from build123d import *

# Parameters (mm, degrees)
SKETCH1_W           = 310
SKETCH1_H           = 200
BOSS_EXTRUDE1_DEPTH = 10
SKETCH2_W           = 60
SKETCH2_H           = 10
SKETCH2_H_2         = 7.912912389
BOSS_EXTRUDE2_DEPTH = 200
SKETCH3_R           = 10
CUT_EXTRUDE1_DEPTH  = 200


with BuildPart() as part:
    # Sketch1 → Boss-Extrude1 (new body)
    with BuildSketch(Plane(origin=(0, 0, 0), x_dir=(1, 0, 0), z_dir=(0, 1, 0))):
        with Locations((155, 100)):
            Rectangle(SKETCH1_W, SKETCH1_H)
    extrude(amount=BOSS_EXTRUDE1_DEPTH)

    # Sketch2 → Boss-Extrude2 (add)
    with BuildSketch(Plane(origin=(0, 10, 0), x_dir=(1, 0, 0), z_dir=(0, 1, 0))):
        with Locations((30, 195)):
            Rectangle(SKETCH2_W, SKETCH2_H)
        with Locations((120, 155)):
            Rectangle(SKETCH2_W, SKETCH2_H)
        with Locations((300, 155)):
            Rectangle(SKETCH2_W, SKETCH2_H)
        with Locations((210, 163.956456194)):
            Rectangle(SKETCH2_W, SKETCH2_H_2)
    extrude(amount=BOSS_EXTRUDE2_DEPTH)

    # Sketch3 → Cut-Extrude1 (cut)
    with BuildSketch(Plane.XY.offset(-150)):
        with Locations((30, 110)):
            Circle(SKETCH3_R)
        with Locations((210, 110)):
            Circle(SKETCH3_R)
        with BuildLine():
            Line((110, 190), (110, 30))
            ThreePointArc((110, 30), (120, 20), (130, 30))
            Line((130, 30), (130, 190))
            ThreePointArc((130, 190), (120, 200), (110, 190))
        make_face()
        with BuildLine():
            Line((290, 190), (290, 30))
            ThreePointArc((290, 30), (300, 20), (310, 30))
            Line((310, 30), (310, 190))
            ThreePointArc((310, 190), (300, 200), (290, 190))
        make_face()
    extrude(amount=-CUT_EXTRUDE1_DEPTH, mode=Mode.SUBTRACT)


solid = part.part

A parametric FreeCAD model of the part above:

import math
import FreeCAD as App
import Part
import Sketcher

V = App.Vector

doc = App.newDocument("Part")
body = doc.addObject("PartDesign::Body", "Body")

# Sketch on XZ plane
sketch1 = doc.addObject("Sketcher::SketchObject", "Sketch")
body.addObject(sketch1)
sketch1.AttachmentSupport = (doc.XZ_Plane, [""])
sketch1.MapMode = "FlatFace"
sketch1.addGeometry(Part.LineSegment(V(0, -200, 0), V(0, 0, 0)), False)
sketch1.addGeometry(Part.LineSegment(V(0, 0, 0), V(310, 0, 0)), False)
sketch1.addGeometry(Part.LineSegment(V(310, 0, 0), V(310, -200, 0)), False)
sketch1.addGeometry(Part.LineSegment(V(310, -200, 0), V(0, -200, 0)), False)
sketch1.addConstraint(Sketcher.Constraint("Coincident", 0, 2, 1, 1))
sketch1.addConstraint(Sketcher.Constraint("Coincident", 1, 2, 2, 1))
sketch1.addConstraint(Sketcher.Constraint("Coincident", 2, 2, 3, 1))
sketch1.addConstraint(Sketcher.Constraint("Coincident", 3, 2, 0, 1))
sketch1.addConstraint(Sketcher.Constraint("Vertical", 0))
sketch1.addConstraint(Sketcher.Constraint("Horizontal", 1))
sketch1.addConstraint(Sketcher.Constraint("Vertical", 2))
sketch1.addConstraint(Sketcher.Constraint("Horizontal", 3))
sketch1.addConstraint(Sketcher.Constraint("Coincident", 0, 2, -1, 1))
sketch1.addConstraint(Sketcher.Constraint("DistanceX", 1, 1, 1, 2, 310.0))
sketch1.addConstraint(Sketcher.Constraint("DistanceY", 0, 1, 0, 2, 200.0))
pad1 = doc.addObject("PartDesign::Pad", "Pad")
body.addObject(pad1)
pad1.Profile = sketch1
pad1.Length = 10
pad1.Reversed = True

# Sketch on XZ plane
sketch2 = doc.addObject("Sketcher::SketchObject", "Sketch001")
body.addObject(sketch2)
sketch2.AttachmentSupport = (doc.XZ_Plane, [""])
sketch2.MapMode = "FlatFace"
sketch2.AttachmentOffset = App.Placement(V(0, 0, -10), App.Rotation())
sketch2.addGeometry(Part.LineSegment(V(0, -200, 0), V(0, -190, 0)), False)
sketch2.addGeometry(Part.LineSegment(V(0, -190, 0), V(60, -190, 0)), False)
sketch2.addGeometry(Part.LineSegment(V(60, -190, 0), V(60, -200, 0)), False)
sketch2.addGeometry(Part.LineSegment(V(60, -200, 0), V(0, -200, 0)), False)
sketch2.addGeometry(Part.LineSegment(V(90, -160, 0), V(90, -150, 0)), False)
sketch2.addGeometry(Part.LineSegment(V(90, -150, 0), V(150, -150, 0)), False)
sketch2.addGeometry(Part.LineSegment(V(150, -150, 0), V(150, -160, 0)), False)
sketch2.addGeometry(Part.LineSegment(V(150, -160, 0), V(90, -160, 0)), False)
sketch2.addGeometry(Part.LineSegment(V(270, -160, 0), V(270, -150, 0)), False)
sketch2.addGeometry(Part.LineSegment(V(270, -150, 0), V(330, -150, 0)), False)
sketch2.addGeometry(Part.LineSegment(V(330, -150, 0), V(330, -160, 0)), False)
sketch2.addGeometry(Part.LineSegment(V(330, -160, 0), V(270, -160, 0)), False)
sketch2.addGeometry(Part.LineSegment(V(180, -167.912912, 0), V(180, -160, 0)), False)
sketch2.addGeometry(Part.LineSegment(V(180, -160, 0), V(240, -160, 0)), False)
sketch2.addGeometry(Part.LineSegment(V(240, -160, 0), V(240, -167.912912, 0)), False)
sketch2.addGeometry(Part.LineSegment(V(240, -167.912912, 0), V(180, -167.912912, 0)), False)
sketch2.addConstraint(Sketcher.Constraint("Coincident", 0, 2, 1, 1))
sketch2.addConstraint(Sketcher.Constraint("Coincident", 1, 2, 2, 1))
sketch2.addConstraint(Sketcher.Constraint("Coincident", 2, 2, 3, 1))
sketch2.addConstraint(Sketcher.Constraint("Coincident", 3, 2, 0, 1))
sketch2.addConstraint(Sketcher.Constraint("Coincident", 4, 2, 5, 1))
sketch2.addConstraint(Sketcher.Constraint("Coincident", 5, 2, 6, 1))
sketch2.addConstraint(Sketcher.Constraint("Coincident", 6, 2, 7, 1))
sketch2.addConstraint(Sketcher.Constraint("Coincident", 7, 2, 4, 1))
sketch2.addConstraint(Sketcher.Constraint("Coincident", 8, 2, 9, 1))
sketch2.addConstraint(Sketcher.Constraint("Coincident", 9, 2, 10, 1))
sketch2.addConstraint(Sketcher.Constraint("Coincident", 10, 2, 11, 1))
sketch2.addConstraint(Sketcher.Constraint("Coincident", 11, 2, 8, 1))
sketch2.addConstraint(Sketcher.Constraint("Coincident", 12, 2, 13, 1))
sketch2.addConstraint(Sketcher.Constraint("Coincident", 13, 2, 14, 1))
sketch2.addConstraint(Sketcher.Constraint("Coincident", 14, 2, 15, 1))
sketch2.addConstraint(Sketcher.Constraint("Coincident", 15, 2, 12, 1))
sketch2.addConstraint(Sketcher.Constraint("Vertical", 0))
sketch2.addConstraint(Sketcher.Constraint("Horizontal", 1))
sketch2.addConstraint(Sketcher.Constraint("Vertical", 2))
sketch2.addConstraint(Sketcher.Constraint("Horizontal", 3))
sketch2.addConstraint(Sketcher.Constraint("Vertical", 4))
sketch2.addConstraint(Sketcher.Constraint("Horizontal", 5))
sketch2.addConstraint(Sketcher.Constraint("Vertical", 6))
sketch2.addConstraint(Sketcher.Constraint("Horizontal", 7))
sketch2.addConstraint(Sketcher.Constraint("Vertical", 8))
sketch2.addConstraint(Sketcher.Constraint("Horizontal", 9))
sketch2.addConstraint(Sketcher.Constraint("Vertical", 10))
sketch2.addConstraint(Sketcher.Constraint("Horizontal", 11))
sketch2.addConstraint(Sketcher.Constraint("Vertical", 12))
sketch2.addConstraint(Sketcher.Constraint("Horizontal", 13))
sketch2.addConstraint(Sketcher.Constraint("Vertical", 14))
sketch2.addConstraint(Sketcher.Constraint("Horizontal", 15))
sketch2.addConstraint(Sketcher.Constraint("PointOnObject", 0, 2, -2))
sketch2.addConstraint(Sketcher.Constraint("Horizontal", 5, 2, 8, 2))
sketch2.addConstraint(Sketcher.Constraint("Horizontal", 7, 2, 10, 2))
sketch2.addConstraint(Sketcher.Constraint("Horizontal", 11, 2, 12, 2))
sketch2.addConstraint(Sketcher.Constraint("Equal", 3, 5))
sketch2.addConstraint(Sketcher.Constraint("Equal", 7, 9))
sketch2.addConstraint(Sketcher.Constraint("Equal", 11, 13))
sketch2.addConstraint(Sketcher.Constraint("Equal", 2, 4))
sketch2.addConstraint(Sketcher.Constraint("DistanceX", 1, 1, 1, 2, 60.0))
sketch2.addConstraint(Sketcher.Constraint("DistanceY", 0, 1, 0, 2, 10.0))
sketch2.addConstraint(Sketcher.Constraint("DistanceY", 0, 2, -1, 1, 190.0))
sketch2.addConstraint(Sketcher.Constraint("DistanceX", -1, 1, 4, 2, 90.0))
sketch2.addConstraint(Sketcher.Constraint("DistanceY", 4, 2, -1, 1, 150.0))
sketch2.addConstraint(Sketcher.Constraint("DistanceX", -1, 1, 8, 2, 270.0))
sketch2.addConstraint(Sketcher.Constraint("DistanceX", -1, 1, 12, 2, 180.0))
sketch2.addConstraint(Sketcher.Constraint("DistanceY", 12, 1, 12, 2, 7.912912))
pad2 = doc.addObject("PartDesign::Pad", "Pad001")
body.addObject(pad2)
pad2.Profile = sketch2
pad2.Length = 200
pad2.Reversed = True

# Sketch on XY plane
sketch3 = doc.addObject("Sketcher::SketchObject", "Sketch002")
body.addObject(sketch3)
sketch3.AttachmentSupport = (doc.XY_Plane, [""])
sketch3.MapMode = "FlatFace"
sketch3.AttachmentOffset = App.Placement(V(0, 0, -150), App.Rotation())
sketch3.addGeometry(Part.Circle(V(30, 110, 0), V(0, 0, 1), 10), False)
sketch3.addGeometry(Part.Circle(V(210, 110, 0), V(0, 0, 1), 10), False)
sketch3.addGeometry(Part.LineSegment(V(110, 190, 0), V(110, 30, 0)), False)
sketch3.addGeometry(Part.ArcOfCircle(Part.Circle(V(120, 30, 0), V(0, 0, 1), 10), math.radians(180), math.radians(360)), False)
sketch3.addGeometry(Part.LineSegment(V(130, 30, 0), V(130, 190, 0)), False)
sketch3.addGeometry(Part.ArcOfCircle(Part.Circle(V(120, 190, 0), V(0, 0, 1), 10), math.radians(0), math.radians(180)), False)
sketch3.addGeometry(Part.LineSegment(V(290, 190, 0), V(290, 30, 0)), False)
sketch3.addGeometry(Part.ArcOfCircle(Part.Circle(V(300, 30, 0), V(0, 0, 1), 10), math.radians(180), math.radians(360)), False)
sketch3.addGeometry(Part.LineSegment(V(310, 30, 0), V(310, 190, 0)), False)
sketch3.addGeometry(Part.ArcOfCircle(Part.Circle(V(300, 190, 0), V(0, 0, 1), 10), math.radians(0), math.radians(180)), False)
sketch3.addConstraint(Sketcher.Constraint("Tangent", 2, 2, 3, 1))
sketch3.addConstraint(Sketcher.Constraint("Tangent", 3, 2, 4, 1))
sketch3.addConstraint(Sketcher.Constraint("Tangent", 4, 2, 5, 1))
sketch3.addConstraint(Sketcher.Constraint("Tangent", 5, 2, 2, 1))
sketch3.addConstraint(Sketcher.Constraint("Tangent", 6, 2, 7, 1))
sketch3.addConstraint(Sketcher.Constraint("Tangent", 7, 2, 8, 1))
sketch3.addConstraint(Sketcher.Constraint("Tangent", 8, 2, 9, 1))
sketch3.addConstraint(Sketcher.Constraint("Tangent", 9, 2, 6, 1))
sketch3.addConstraint(Sketcher.Constraint("Vertical", 2))
sketch3.addConstraint(Sketcher.Constraint("Vertical", 4))
sketch3.addConstraint(Sketcher.Constraint("Vertical", 6))
sketch3.addConstraint(Sketcher.Constraint("Vertical", 8))
sketch3.addConstraint(Sketcher.Constraint("Equal", 0, 1))
sketch3.addConstraint(Sketcher.Constraint("Equal", 1, 3))
sketch3.addConstraint(Sketcher.Constraint("Equal", 5, 7))
sketch3.addConstraint(Sketcher.Constraint("Horizontal", 0, 3, 1, 3))
sketch3.addConstraint(Sketcher.Constraint("Horizontal", 3, 3, 7, 3))
sketch3.addConstraint(Sketcher.Constraint("Horizontal", 5, 3, 9, 3))
sketch3.addConstraint(Sketcher.Constraint("Diameter", 0, 20.0))
sketch3.addConstraint(Sketcher.Constraint("DistanceY", 2, 2, 2, 1, 160.0))
sketch3.addConstraint(Sketcher.Constraint("DistanceX", -1, 1, 0, 3, 30.0))
sketch3.addConstraint(Sketcher.Constraint("DistanceY", -1, 1, 0, 3, 110.0))
sketch3.addConstraint(Sketcher.Constraint("DistanceX", -1, 1, 1, 3, 210.0))
sketch3.addConstraint(Sketcher.Constraint("DistanceX", -1, 1, 3, 3, 120.0))
sketch3.addConstraint(Sketcher.Constraint("DistanceY", -1, 1, 3, 3, 30.0))
sketch3.addConstraint(Sketcher.Constraint("DistanceX", -1, 1, 7, 3, 300.0))
pocket1 = doc.addObject("PartDesign::Pocket", "Pocket")
body.addObject(pocket1)
pocket1.Profile = sketch3
pocket1.Length = 200

doc.recompute()
